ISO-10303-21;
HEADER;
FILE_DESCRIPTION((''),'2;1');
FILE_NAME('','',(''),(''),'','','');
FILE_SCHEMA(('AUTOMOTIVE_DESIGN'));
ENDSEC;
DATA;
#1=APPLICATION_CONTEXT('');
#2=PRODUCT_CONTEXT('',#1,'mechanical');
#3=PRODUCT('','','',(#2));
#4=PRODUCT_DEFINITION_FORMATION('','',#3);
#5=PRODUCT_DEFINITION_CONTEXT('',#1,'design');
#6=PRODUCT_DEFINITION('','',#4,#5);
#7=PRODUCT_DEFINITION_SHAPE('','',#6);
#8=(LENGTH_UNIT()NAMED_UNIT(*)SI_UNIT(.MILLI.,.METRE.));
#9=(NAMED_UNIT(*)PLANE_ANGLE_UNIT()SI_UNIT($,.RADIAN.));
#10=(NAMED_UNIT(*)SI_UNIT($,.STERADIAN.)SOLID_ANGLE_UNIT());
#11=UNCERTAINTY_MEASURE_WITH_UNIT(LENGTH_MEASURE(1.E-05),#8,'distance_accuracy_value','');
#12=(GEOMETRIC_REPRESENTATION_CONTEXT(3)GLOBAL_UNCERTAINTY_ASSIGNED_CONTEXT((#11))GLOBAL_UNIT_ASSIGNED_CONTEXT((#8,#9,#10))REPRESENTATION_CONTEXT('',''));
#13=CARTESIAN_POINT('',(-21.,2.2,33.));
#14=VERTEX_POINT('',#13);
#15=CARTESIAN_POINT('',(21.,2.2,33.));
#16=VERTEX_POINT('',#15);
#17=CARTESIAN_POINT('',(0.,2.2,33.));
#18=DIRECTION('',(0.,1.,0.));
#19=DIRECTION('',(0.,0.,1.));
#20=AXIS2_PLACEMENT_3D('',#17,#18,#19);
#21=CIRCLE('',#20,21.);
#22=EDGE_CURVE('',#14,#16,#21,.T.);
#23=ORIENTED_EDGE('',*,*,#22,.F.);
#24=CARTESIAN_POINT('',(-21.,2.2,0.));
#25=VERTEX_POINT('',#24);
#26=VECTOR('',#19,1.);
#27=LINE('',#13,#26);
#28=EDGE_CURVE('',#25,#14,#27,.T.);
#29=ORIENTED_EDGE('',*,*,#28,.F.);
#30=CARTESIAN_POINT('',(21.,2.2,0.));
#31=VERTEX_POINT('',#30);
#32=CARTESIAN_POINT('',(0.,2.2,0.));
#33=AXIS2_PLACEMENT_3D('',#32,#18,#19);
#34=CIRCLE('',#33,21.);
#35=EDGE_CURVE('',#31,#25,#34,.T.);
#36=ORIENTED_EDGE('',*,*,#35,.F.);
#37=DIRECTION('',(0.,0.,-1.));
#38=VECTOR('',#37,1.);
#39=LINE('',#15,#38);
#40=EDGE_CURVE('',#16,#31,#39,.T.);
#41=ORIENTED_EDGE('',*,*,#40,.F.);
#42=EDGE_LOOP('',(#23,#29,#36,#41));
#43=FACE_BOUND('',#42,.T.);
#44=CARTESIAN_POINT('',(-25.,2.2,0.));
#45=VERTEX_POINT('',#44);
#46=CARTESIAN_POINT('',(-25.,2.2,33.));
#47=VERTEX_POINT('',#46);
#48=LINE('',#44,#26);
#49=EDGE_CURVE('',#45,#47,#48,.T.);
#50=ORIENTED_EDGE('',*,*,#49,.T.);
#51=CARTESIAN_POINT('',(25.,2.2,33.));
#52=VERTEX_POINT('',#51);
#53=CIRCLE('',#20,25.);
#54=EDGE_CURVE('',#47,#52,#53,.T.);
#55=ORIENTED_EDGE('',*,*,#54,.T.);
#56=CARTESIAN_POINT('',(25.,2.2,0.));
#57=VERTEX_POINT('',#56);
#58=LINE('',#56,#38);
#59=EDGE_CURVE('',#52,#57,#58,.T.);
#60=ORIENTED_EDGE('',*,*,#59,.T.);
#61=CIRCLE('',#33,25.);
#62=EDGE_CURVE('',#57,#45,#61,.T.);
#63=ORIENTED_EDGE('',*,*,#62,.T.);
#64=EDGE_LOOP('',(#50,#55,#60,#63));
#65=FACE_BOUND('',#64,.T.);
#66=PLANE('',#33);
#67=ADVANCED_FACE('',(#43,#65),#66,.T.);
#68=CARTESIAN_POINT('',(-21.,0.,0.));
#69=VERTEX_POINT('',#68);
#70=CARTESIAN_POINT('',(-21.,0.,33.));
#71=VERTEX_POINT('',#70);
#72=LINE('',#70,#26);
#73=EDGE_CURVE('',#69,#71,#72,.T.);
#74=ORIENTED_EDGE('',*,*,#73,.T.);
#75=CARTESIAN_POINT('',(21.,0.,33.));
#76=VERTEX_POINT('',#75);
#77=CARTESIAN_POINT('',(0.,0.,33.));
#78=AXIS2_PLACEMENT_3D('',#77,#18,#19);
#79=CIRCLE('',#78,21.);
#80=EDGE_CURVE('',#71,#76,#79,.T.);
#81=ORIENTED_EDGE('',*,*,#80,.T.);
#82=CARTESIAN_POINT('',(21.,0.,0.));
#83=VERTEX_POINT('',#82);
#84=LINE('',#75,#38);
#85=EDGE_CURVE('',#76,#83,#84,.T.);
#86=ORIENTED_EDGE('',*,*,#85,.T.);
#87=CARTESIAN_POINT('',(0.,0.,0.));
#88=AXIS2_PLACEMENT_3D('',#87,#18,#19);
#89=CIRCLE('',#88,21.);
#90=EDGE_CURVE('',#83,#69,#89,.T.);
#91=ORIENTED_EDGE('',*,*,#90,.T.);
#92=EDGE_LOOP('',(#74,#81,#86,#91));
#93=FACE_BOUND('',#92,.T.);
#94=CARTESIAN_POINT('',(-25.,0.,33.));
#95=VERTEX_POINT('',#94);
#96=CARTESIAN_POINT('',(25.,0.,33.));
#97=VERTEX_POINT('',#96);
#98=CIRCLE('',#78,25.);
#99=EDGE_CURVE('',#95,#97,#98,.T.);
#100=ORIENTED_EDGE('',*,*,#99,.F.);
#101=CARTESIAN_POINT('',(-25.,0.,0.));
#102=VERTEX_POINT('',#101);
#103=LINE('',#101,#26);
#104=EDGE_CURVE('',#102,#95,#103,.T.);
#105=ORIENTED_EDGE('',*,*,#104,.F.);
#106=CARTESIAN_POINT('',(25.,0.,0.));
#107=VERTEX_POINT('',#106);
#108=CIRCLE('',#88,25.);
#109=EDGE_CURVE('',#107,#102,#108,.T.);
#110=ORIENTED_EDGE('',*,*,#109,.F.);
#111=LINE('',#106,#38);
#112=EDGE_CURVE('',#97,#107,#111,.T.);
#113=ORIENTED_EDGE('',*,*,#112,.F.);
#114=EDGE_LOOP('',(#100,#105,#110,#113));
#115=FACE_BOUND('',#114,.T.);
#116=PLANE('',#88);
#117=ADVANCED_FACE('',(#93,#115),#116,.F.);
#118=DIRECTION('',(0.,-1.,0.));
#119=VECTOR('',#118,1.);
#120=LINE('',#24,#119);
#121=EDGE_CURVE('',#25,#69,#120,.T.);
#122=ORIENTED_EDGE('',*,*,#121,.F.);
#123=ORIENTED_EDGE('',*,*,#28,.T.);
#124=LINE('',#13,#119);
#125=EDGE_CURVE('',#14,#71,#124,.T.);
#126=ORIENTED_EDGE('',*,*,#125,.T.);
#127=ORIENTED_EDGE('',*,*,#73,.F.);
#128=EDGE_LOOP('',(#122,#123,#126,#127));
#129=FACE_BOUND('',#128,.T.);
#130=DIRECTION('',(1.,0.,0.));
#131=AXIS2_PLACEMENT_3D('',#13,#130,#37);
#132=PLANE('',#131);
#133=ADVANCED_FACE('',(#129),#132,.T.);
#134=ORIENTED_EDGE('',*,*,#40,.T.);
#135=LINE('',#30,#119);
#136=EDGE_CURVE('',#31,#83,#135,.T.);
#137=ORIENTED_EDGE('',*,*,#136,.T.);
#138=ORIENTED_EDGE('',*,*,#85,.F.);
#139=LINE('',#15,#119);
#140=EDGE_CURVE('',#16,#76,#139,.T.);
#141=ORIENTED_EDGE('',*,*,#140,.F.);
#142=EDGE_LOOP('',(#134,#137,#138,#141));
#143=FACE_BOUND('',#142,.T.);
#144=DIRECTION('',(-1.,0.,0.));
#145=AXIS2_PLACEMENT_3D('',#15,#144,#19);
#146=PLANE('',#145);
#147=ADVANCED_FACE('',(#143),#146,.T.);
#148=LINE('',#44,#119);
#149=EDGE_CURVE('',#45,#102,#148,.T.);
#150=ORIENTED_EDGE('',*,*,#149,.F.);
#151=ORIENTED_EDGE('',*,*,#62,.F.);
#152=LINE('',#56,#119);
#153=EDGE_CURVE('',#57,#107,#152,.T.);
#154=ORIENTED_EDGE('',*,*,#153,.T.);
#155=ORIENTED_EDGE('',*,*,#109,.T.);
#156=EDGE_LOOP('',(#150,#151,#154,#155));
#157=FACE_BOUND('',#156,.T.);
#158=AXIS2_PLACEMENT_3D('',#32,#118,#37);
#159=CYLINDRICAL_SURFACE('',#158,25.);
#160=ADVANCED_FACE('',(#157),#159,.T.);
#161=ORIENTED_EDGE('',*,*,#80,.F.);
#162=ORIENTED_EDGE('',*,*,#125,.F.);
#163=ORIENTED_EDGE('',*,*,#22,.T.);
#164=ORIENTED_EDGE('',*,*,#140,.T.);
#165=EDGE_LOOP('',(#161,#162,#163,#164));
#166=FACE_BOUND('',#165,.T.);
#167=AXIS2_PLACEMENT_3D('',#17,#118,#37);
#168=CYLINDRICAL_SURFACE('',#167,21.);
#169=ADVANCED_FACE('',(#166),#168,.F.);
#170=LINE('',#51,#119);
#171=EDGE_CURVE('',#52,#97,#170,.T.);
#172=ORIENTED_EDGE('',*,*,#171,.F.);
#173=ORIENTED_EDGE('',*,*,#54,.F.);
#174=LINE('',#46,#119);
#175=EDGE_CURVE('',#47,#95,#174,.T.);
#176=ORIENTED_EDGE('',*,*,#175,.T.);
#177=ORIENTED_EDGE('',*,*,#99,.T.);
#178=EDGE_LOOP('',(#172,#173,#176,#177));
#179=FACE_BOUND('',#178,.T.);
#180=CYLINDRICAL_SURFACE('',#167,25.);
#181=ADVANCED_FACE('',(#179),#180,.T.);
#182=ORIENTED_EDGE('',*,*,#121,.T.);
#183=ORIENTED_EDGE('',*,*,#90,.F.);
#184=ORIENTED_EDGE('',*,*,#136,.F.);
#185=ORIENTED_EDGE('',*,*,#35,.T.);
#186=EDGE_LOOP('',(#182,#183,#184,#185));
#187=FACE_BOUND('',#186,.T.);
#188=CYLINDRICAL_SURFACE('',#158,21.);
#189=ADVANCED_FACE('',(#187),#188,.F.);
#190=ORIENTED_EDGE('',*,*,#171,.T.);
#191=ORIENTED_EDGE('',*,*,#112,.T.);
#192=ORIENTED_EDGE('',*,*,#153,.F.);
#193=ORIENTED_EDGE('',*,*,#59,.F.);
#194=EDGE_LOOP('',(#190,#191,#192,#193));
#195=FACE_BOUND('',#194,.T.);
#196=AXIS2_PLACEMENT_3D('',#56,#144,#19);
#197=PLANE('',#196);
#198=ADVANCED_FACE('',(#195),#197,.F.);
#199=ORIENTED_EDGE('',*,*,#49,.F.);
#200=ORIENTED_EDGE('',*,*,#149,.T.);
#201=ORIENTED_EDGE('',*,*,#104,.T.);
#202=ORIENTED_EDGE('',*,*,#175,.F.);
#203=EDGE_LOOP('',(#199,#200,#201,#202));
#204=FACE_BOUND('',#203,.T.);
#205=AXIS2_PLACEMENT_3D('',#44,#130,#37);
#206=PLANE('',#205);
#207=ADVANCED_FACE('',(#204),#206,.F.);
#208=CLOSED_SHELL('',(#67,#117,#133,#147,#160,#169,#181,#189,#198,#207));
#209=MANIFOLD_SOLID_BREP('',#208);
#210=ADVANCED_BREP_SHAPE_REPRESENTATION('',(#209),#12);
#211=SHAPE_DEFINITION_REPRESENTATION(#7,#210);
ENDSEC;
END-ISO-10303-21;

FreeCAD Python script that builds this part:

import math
import FreeCAD as App
import Part
import Sketcher
from FreeCAD import Vector
Q = App.Units.Quantity

doc = App.newDocument("Part")
params = doc.addObject("Spreadsheet::Sheet", "Params")
for row, (alias, value) in enumerate([
    ("sketch1_radius", "25 mm"),
    ("sketch1_radius2", "21 mm"),
    ("sketch1_height", "33 mm"),
    ("pad1_length", "2.2 mm"),
], start=1):
    params.set(f"A{row}", alias)
    params.set(f"B{row}", "=" + value)
    params.setAlias(f"B{row}", alias)

body = doc.addObject("PartDesign::Body", "Body")

# Sketch on XZ plane
sketch1 = body.newObject("Sketcher::SketchObject", "Sketch")
sketch1.AttachmentSupport = (doc.getObject("XZ_Plane"), [""])
sketch1.MapMode = "FlatFace"
sketch1.addGeometry([
    Part.LineSegment(Vector(25, 33, 0), Vector(25, 0, 0)),  # 0
    Part.ArcOfCircle(Part.Circle(Vector(0, 0, 0), Vector(0, 0, 1), 25), math.radians(180), math.radians(360)),  # 1
    Part.LineSegment(Vector(-25, 0, 0), Vector(-25, 33, 0)),  # 2
    Part.ArcOfCircle(Part.Circle(Vector(0, 33, 0), Vector(0, 0, 1), 25), math.radians(0), math.radians(180)),  # 3
    Part.LineSegment(Vector(-21, 33, 0), Vector(-21, 0, 0)),  # 4
    Part.ArcOfCircle(Part.Circle(Vector(0, 0, 0), Vector(0, 0, 1), 21), math.radians(180), math.radians(360)),  # 5
    Part.LineSegment(Vector(21, 0, 0), Vector(21, 33, 0)),  # 6
    Part.ArcOfCircle(Part.Circle(Vector(0, 33, 0), Vector(0, 0, 1), 21), math.radians(0), math.radians(180)),  # 7
], False)
sketch1.addConstraint([
    Sketcher.Constraint("Tangent", 0, 2, 1, 2),
    Sketcher.Constraint("Tangent", 1, 1, 2, 1),
    Sketcher.Constraint("Tangent", 2, 2, 3, 2),
    Sketcher.Constraint("Tangent", 3, 1, 0, 1),
    Sketcher.Constraint("Tangent", 4, 2, 5, 1),
    Sketcher.Constraint("Tangent", 5, 2, 6, 1),
    Sketcher.Constraint("Tangent", 6, 2, 7, 1),
    Sketcher.Constraint("Tangent", 7, 2, 4, 1),
    Sketcher.Constraint("Vertical", 0),
    Sketcher.Constraint("Vertical", 2),
    Sketcher.Constraint("Vertical", 4),
    Sketcher.Constraint("Vertical", 6),
    Sketcher.Constraint("Coincident", 1, 3, -1, 1),
    Sketcher.Constraint("Coincident", 5, 3, -1, 1),
    Sketcher.Constraint("Horizontal", 7, 3, 2, 2),
    Sketcher.Constraint("Radius", 1, Q("25 mm")),
    Sketcher.Constraint("Radius", 5, Q("21 mm")),
    Sketcher.Constraint("DistanceY", 0, 2, 0, 1, Q("33 mm")),
])
sketch1.setExpression("Constraints[15]", "Params.sketch1_radius")
sketch1.setExpression("Constraints[16]", "Params.sketch1_radius2")
sketch1.setExpression("Constraints[17]", "Params.sketch1_height")
pad1 = body.newObject("PartDesign::Pad", "Pad")
pad1.Profile = sketch1
pad1.setExpression("Length", "Params.pad1_length")
pad1.Reversed = True

doc.recompute()
